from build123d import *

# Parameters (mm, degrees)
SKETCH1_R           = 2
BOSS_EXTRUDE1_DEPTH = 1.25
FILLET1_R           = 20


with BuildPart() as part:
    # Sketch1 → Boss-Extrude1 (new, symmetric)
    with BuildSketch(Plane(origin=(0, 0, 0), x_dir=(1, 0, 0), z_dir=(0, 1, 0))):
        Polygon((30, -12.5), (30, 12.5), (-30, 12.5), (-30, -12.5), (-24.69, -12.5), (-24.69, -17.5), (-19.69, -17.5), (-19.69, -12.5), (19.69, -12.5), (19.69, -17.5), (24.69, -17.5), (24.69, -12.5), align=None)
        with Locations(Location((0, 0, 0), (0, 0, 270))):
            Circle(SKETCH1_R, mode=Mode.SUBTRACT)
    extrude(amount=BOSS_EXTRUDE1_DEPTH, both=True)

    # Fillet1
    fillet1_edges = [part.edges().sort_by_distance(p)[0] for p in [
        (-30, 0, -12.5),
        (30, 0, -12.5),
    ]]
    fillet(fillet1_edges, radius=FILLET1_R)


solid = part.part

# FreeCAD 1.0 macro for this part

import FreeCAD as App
import Part
import Sketcher
Q = App.Units.Quantity


def edges_at(feature, points):
    """Names of the edges that pass closest to the given points."""
    edges = feature.Shape.Edges
    near = lambda p: min(range(len(edges)), key=lambda i: edges[i].distToShape(Part.Vertex(*p))[0])
    return sorted({f"Edge{near(p) + 1}" for p in points})

doc = App.newDocument("Part")
body = doc.addObject("PartDesign::Body", "Body")

sketch1 = body.newObject("Sketcher::SketchObject", "Sketch")
sketch1.AttachmentSupport = (doc.getObject("XZ_Plane"), [""])
sketch1.MapMode = "FlatFace"
sketch1.addGeometry([
    Part.LineSegment(App.Vector(30, 12.5, 0), App.Vector(30, -12.5, 0)),
    Part.LineSegment(App.Vector(30, -12.5, 0), App.Vector(-30, -12.5, 0)),
    Part.LineSegment(App.Vector(-30, -12.5, 0), App.Vector(-30, 12.5, 0)),
    Part.LineSegment(App.Vector(-30, 12.5, 0), App.Vector(-24.69, 12.5, 0)),
    Part.LineSegment(App.Vector(-24.69, 12.5, 0), App.Vector(-24.69, 17.5, 0)),
    Part.LineSegment(App.Vector(-24.69, 17.5, 0), App.Vector(-19.69, 17.5, 0)),
    Part.LineSegment(App.Vector(-19.69, 17.5, 0), App.Vector(-19.69, 12.5, 0)),
    Part.LineSegment(App.Vector(-19.69, 12.5, 0), App.Vector(19.69, 12.5, 0)),
    Part.LineSegment(App.Vector(19.69, 12.5, 0), App.Vector(19.69, 17.5, 0)),
    Part.LineSegment(App.Vector(19.69, 17.5, 0), App.Vector(24.69, 17.5, 0)),
    Part.LineSegment(App.Vector(24.69, 17.5, 0), App.Vector(24.69, 12.5, 0)),
    Part.LineSegment(App.Vector(24.69, 12.5, 0), App.Vector(30, 12.5, 0)),
    Part.Circle(App.Vector(0, 0, 0), App.Vector(0, 0, 1), 2),
], False)
sketch1.addConstraint([
    Sketcher.Constraint("Coincident", 0, 2, 1, 1),
    Sketcher.Constraint("Coincident", 1, 2, 2, 1),
    Sketcher.Constraint("Coincident", 2, 2, 3, 1),
    Sketcher.Constraint("Coincident", 3, 2, 4, 1),
    Sketcher.Constraint("Coincident", 4, 2, 5, 1),
    Sketcher.Constraint("Coincident", 5, 2, 6, 1),
    Sketcher.Constraint("Coincident", 6, 2, 7, 1),
    Sketcher.Constraint("Coincident", 7, 2, 8, 1),
    Sketcher.Constraint("Coincident", 8, 2, 9, 1),
    Sketcher.Constraint("Coincident", 9, 2, 10, 1),
    Sketcher.Constraint("Coincident", 10, 2, 11, 1),
    Sketcher.Constraint("Coincident", 11, 2, 0, 1),
    Sketcher.Constraint("Vertical", 0),
    Sketcher.Constraint("Horizontal", 1),
    Sketcher.Constraint("Vertical", 2),
    Sketcher.Constraint("Horizontal", 3),
    Sketcher.Constraint("Vertical", 4),
    Sketcher.Constraint("Horizontal", 5),
    Sketcher.Constraint("Vertical", 6),
    Sketcher.Constraint("Horizontal", 7),
    Sketcher.Constraint("Vertical", 8),
    Sketcher.Constraint("Horizontal", 9),
    Sketcher.Constraint("Vertical", 10),
    Sketcher.Constraint("Horizontal", 11),
    Sketcher.Constraint("Coincident", 12, 3, -1, 1),
    Sketcher.Constraint("Symmetric", 0, 2, 2, 2, -1, 1),
    Sketcher.Constraint("Symmetric", 5, 2, 8, 2, -2),
    Sketcher.Constraint("Symmetric", 3, 2, 10, 2, -2),
    Sketcher.Constraint("Horizontal", 3, 2, 6, 2),
    Sketcher.Constraint("Equal", 9, 4),
    Sketcher.Constraint("Diameter", 12, Q("4 mm")),
    Sketcher.Constraint("DistanceX", 1, 2, 1, 1, Q("60 mm")),
    Sketcher.Constraint("DistanceX", 5, 1, 5, 2, Q("5 mm")),
    Sketcher.Constraint("DistanceY", 0, 2, 0, 1, Q("25 mm")),
    Sketcher.Constraint("DistanceX", 3, 1, 3, 2, Q("5.31 mm")),
])
pad1 = body.newObject("PartDesign::Pad", "Pad")
pad1.Profile = sketch1
pad1.Length = 2.5
pad1.Midplane = True
doc.recompute()

fillet = body.newObject("PartDesign::Fillet", "Fillet")
fillet.Base = (pad1, edges_at(pad1, [(-30, 0, -12.5), (30, 0, -12.5)]))
fillet.Radius = 20

doc.recompute()
